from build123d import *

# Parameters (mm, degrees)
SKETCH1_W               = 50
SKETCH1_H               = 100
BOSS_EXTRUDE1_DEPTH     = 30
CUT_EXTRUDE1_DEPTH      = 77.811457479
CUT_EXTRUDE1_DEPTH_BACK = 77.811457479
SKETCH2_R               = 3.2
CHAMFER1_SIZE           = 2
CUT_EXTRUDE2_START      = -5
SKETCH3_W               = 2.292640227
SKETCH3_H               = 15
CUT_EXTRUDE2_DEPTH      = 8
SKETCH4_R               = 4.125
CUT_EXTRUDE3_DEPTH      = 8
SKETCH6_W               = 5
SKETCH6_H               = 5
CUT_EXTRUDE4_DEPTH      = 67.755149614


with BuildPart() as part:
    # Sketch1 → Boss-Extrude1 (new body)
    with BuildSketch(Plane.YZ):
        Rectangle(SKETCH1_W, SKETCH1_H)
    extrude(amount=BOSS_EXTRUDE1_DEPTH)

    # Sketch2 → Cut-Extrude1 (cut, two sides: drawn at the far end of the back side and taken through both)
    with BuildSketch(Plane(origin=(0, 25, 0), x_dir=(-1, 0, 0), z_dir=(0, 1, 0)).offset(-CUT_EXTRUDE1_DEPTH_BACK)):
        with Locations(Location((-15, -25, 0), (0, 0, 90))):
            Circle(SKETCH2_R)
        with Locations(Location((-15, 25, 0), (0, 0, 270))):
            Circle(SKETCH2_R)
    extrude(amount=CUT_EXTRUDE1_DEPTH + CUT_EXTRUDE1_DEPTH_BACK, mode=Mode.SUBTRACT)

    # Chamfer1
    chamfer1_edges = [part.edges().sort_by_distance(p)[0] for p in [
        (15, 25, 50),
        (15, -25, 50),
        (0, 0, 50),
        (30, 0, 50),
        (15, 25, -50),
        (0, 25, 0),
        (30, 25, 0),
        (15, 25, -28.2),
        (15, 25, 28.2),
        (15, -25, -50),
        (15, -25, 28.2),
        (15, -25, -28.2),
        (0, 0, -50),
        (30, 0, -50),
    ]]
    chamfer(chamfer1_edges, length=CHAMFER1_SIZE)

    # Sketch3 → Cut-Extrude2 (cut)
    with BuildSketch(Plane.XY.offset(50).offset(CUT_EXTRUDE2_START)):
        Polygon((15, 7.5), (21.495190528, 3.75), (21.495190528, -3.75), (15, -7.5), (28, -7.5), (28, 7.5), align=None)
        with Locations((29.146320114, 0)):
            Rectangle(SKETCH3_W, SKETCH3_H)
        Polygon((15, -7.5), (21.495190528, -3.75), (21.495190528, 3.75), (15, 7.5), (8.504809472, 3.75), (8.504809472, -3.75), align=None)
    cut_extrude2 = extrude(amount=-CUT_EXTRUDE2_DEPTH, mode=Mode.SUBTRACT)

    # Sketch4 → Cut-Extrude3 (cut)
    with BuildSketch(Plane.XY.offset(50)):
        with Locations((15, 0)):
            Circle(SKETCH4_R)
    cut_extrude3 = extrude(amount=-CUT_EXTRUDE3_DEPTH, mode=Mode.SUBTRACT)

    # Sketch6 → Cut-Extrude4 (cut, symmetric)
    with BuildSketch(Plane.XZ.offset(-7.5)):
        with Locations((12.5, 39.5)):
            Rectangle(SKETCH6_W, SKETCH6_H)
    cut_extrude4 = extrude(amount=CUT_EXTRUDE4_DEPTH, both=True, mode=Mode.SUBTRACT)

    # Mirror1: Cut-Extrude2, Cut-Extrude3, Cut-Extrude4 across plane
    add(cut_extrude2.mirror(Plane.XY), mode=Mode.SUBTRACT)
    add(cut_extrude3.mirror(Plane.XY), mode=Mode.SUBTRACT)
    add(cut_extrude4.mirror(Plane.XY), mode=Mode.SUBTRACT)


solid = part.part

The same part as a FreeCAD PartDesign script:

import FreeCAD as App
import Part
import Sketcher

V = App.Vector
Q = App.Units.Quantity


def edges_at(feature, points):
    """Names of the edges that pass closest to the given points."""
    edges = feature.Shape.Edges
    near = lambda p: min(range(len(edges)), key=lambda i: edges[i].distToShape(Part.Vertex(*p))[0])
    return sorted({f"Edge{near(p) + 1}" for p in points})

doc = App.newDocument("Part")
params = doc.addObject("Spreadsheet::Sheet", "Params")
for row, (alias, value) in enumerate([
    ("sketch1_width", "50 mm"),
    ("sketch1_height", "100 mm"),
    ("pad1_length", "30 mm"),
    ("sketch2_diameter", "6.4 mm"),
    ("chamfer_size", "2 mm"),
    ("sketch3_height", "15 mm"),
    ("sketch3_height2", "7.5 mm"),
    ("pocket2_length", "8 mm"),
    ("sketch4_diameter", "8.25 mm"),
    ("pocket3_length", "8 mm"),
    ("sketch5_width", "5 mm"),
    ("pocket4_length", "135.510299 mm"),
], start=1):
    params.set(f"A{row}", alias)
    params.set(f"B{row}", "=" + value)
    params.setAlias(f"B{row}", alias)

body = doc.addObject("PartDesign::Body", "Body")

# Sketch on YZ plane
sketch1 = doc.addObject("Sketcher::SketchObject", "Sketch")
body.addObject(sketch1)
sketch1.AttachmentSupport = (doc.YZ_Plane, [""])
sketch1.MapMode = "FlatFace"
sketch1.addGeometry(Part.LineSegment(V(-25, 50, 0), V(-25, -50, 0)), False)
sketch1.addGeometry(Part.LineSegment(V(-25, -50, 0), V(25, -50, 0)), False)
sketch1.addGeometry(Part.LineSegment(V(25, -50, 0), V(25, 50, 0)), False)
sketch1.addGeometry(Part.LineSegment(V(25, 50, 0), V(-25, 50, 0)), False)
sketch1.addConstraint(Sketcher.Constraint("Coincident", 0, 2, 1, 1))
sketch1.addConstraint(Sketcher.Constraint("Coincident", 1, 2, 2, 1))
sketch1.addConstraint(Sketcher.Constraint("Coincident", 2, 2, 3, 1))
sketch1.addConstraint(Sketcher.Constraint("Coincident", 3, 2, 0, 1))
sketch1.addConstraint(Sketcher.Constraint("Vertical", 0))
sketch1.addConstraint(Sketcher.Constraint("Horizontal", 1))
sketch1.addConstraint(Sketcher.Constraint("Vertical", 2))
sketch1.addConstraint(Sketcher.Constraint("Horizontal", 3))
sketch1.addConstraint(Sketcher.Constraint("Symmetric", 0, 2, 2, 2, -1, 1))
sketch1.addConstraint(Sketcher.Constraint("DistanceX", 1, 1, 1, 2, Q("50 mm")))
sketch1.addConstraint(Sketcher.Constraint("DistanceY", 0, 2, 0, 1, Q("100 mm")))
sketch1.setExpression("Constraints[9]", "Params.sketch1_width")
sketch1.setExpression("Constraints[10]", "Params.sketch1_height")
pad1 = doc.addObject("PartDesign::Pad", "Pad")
body.addObject(pad1)
pad1.Profile = sketch1
pad1.setExpression("Length", "Params.pad1_length")

# Sketch on XZ plane
sketch2 = doc.addObject("Sketcher::SketchObject", "Sketch001")
body.addObject(sketch2)
sketch2.AttachmentSupport = (doc.XZ_Plane, [""])
sketch2.MapMode = "FlatFace"
sketch2.AttachmentOffset = App.Placement(V(0, 0, -25), App.Rotation())
sketch2.addGeometry(Part.Circle(V(15, -25, 0), V(0, 0, 1), 3.2), False)
sketch2.addGeometry(Part.Circle(V(15, 25, 0), V(0, 0, 1), 3.2), False)
sketch2.addConstraint(Sketcher.Constraint("Equal", 0, 1))
sketch2.addConstraint(Sketcher.Constraint("Symmetric", 0, 3, 1, 3, -1))
sketch2.addConstraint(Sketcher.Constraint("Diameter", 0, Q("6.4 mm")))
sketch2.addConstraint(Sketcher.Constraint("DistanceX", -1, 1, 0, 3, Q("15 mm")))
sketch2.addConstraint(Sketcher.Constraint("DistanceY", 0, 3, -1, 1, Q("25 mm")))
sketch2.setExpression("Constraints[2]", "Params.sketch2_diameter")
pocket1 = doc.addObject("PartDesign::Pocket", "Pocket")
body.addObject(pocket1)
pocket1.Profile = sketch2
pocket1.Type = "ThroughAll"
pocket1.Midplane = True
doc.recompute()

chamfer = doc.addObject("PartDesign::Chamfer", "Chamfer")
body.addObject(chamfer)
chamfer.Base = (pocket1, edges_at(pocket1, [
    (15, 25, 50),
    (15, -25, 50),
    (0, 0, 50),
    (30, 0, 50),
    (15, 25, -50),
    (0, 25, 0),
    (30, 25, 0),
    (15, 25, -28.2),
    (15, 25, 28.2),
    (15, -25, -50),
    (15, -25, 28.2),
    (15, -25, -28.2),
    (0, 0, -50),
    (30, 0, -50),
]))
chamfer.setExpression("Size", "Params.chamfer_size")

# Sketch on XY plane
sketch3 = doc.addObject("Sketcher::SketchObject", "Sketch002")
body.addObject(sketch3)
sketch3.AttachmentSupport = (doc.XY_Plane, [""])
sketch3.MapMode = "FlatFace"
sketch3.AttachmentOffset = App.Placement(V(0, 0, 45), App.Rotation())
sketch3.addGeometry(Part.LineSegment(V(15, -8, 0), V(30, -8, 0)), False)
sketch3.addGeometry(Part.LineSegment(V(30, -8, 0), V(30, 8, 0)), False)
sketch3.addGeometry(Part.LineSegment(V(30, 8, 0), V(15, 8, 0)), False)
sketch3.addGeometry(Part.LineSegment(V(15, 8, 0), V(9, 4, 0)), False)
sketch3.addGeometry(Part.LineSegment(V(9, 4, 0), V(9, -4, 0)), False)
sketch3.addGeometry(Part.LineSegment(V(9, -4, 0), V(15, -8, 0)), False)
sketch3.addConstraint(Sketcher.Constraint("Coincident", 0, 2, 1, 1))
sketch3.addConstraint(Sketcher.Constraint("Coincident", 1, 2, 2, 1))
sketch3.addConstraint(Sketcher.Constraint("Coincident", 2, 2, 3, 1))
sketch3.addConstraint(Sketcher.Constraint("Coincident", 3, 2, 4, 1))
sketch3.addConstraint(Sketcher.Constraint("Coincident", 4, 2, 5, 1))
sketch3.addConstraint(Sketcher.Constraint("Coincident", 5, 2, 0, 1))
sketch3.addConstraint(Sketcher.Constraint("Horizontal", 0))
sketch3.addConstraint(Sketcher.Constraint("Vertical", 1))
sketch3.addConstraint(Sketcher.Constraint("Horizontal", 2))
sketch3.addConstraint(Sketcher.Constraint("Vertical", 4))
sketch3.addConstraint(Sketcher.Constraint("Symmetric", 2, 2, 5, 2, -1))
sketch3.addConstraint(Sketcher.Constraint("Equal", 3, 5))
sketch3.addConstraint(Sketcher.Constraint("DistanceY", 1, 1, 1, 2, Q("15 mm")))
sketch3.addConstraint(Sketcher.Constraint("Angle", 3, Q("-150 deg")))
sketch3.addConstraint(Sketcher.Constraint("DistanceY", 4, 2, 4, 1, Q("7.5 mm")))
sketch3.addConstraint(Sketcher.Constraint("DistanceX", -1, 1, 2, 2, Q("15 mm")))
sketch3.addConstraint(Sketcher.Constraint("DistanceX", 0, 1, 0, 2, Q("15.29264 mm")))
sketch3.setExpression("Constraints[12]", "Params.sketch3_height")
sketch3.setExpression("Constraints[14]", "Params.sketch3_height2")
pocket2 = doc.addObject("PartDesign::Pocket", "Pocket001")
body.addObject(pocket2)
pocket2.Profile = sketch3
pocket2.setExpression("Length", "Params.pocket2_length")

# Sketch on XY plane
sketch4 = doc.addObject("Sketcher::SketchObject", "Sketch003")
body.addObject(sketch4)
sketch4.AttachmentSupport = (doc.XY_Plane, [""])
sketch4.MapMode = "FlatFace"
sketch4.AttachmentOffset = App.Placement(V(0, 0, 50), App.Rotation())
sketch4.addGeometry(Part.Circle(V(15, 0, 0), V(0, 0, 1), 4.1), False)
sketch4.addConstraint(Sketcher.Constraint("PointOnObject", 0, 3, -1))
sketch4.addConstraint(Sketcher.Constraint("Diameter", 0, Q("8.25 mm")))
sketch4.addConstraint(Sketcher.Constraint("DistanceX", -1, 1, 0, 3, Q("15 mm")))
sketch4.setExpression("Constraints[1]", "Params.sketch4_diameter")
pocket3 = doc.addObject("PartDesign::Pocket", "Pocket002")
body.addObject(pocket3)
pocket3.Profile = sketch4
pocket3.setExpression("Length", "Params.pocket3_length")

# Sketch on XZ plane
sketch5 = doc.addObject("Sketcher::SketchObject", "Sketch004")
body.addObject(sketch5)
sketch5.AttachmentSupport = (doc.XZ_Plane, [""])
sketch5.MapMode = "FlatFace"
sketch5.AttachmentOffset = App.Placement(V(0, 0, -7.5), App.Rotation())
sketch5.addGeometry(Part.LineSegment(V(10, 42, 0), V(10, 37, 0)), False)
sketch5.addGeometry(Part.LineSegment(V(10, 37, 0), V(15, 37, 0)), False)
sketch5.addGeometry(Part.LineSegment(V(15, 37, 0), V(15, 42, 0)), False)
sketch5.addGeometry(Part.LineSegment(V(15, 42, 0), V(10, 42, 0)), False)
sketch5.addConstraint(Sketcher.Constraint("Coincident", 0, 2, 1, 1))
sketch5.addConstraint(Sketcher.Constraint("Coincident", 1, 2, 2, 1))
sketch5.addConstraint(Sketcher.Constraint("Coincident", 2, 2, 3, 1))
sketch5.addConstraint(Sketcher.Constraint("Coincident", 3, 2, 0, 1))
sketch5.addConstraint(Sketcher.Constraint("Vertical", 0))
sketch5.addConstraint(Sketcher.Constraint("Horizontal", 1))
sketch5.addConstraint(Sketcher.Constraint("Vertical", 2))
sketch5.addConstraint(Sketcher.Constraint("Horizontal", 3))
sketch5.addConstraint(Sketcher.Constraint("Equal", 3, 0))
sketch5.addConstraint(Sketcher.Constraint("DistanceX", 1, 1, 1, 2, Q("5 mm")))
sketch5.addConstraint(Sketcher.Constraint("DistanceX", -1, 1, 0, 2, Q("10 mm")))
sketch5.addConstraint(Sketcher.Constraint("DistanceY", -1, 1, 0, 2, Q("37 mm")))
sketch5.setExpression("Constraints[9]", "Params.sketch5_width")
pocket4 = doc.addObject("PartDesign::Pocket", "Pocket003")
body.addObject(pocket4)
pocket4.Profile = sketch5
pocket4.setExpression("Length", "Params.pocket4_length")
pocket4.Midplane = True
doc.recompute()

mirrored = doc.addObject("PartDesign::Mirrored", "Mirrored")
body.addObject(mirrored)
mirrored.Originals = [pocket2, pocket3, pocket4]
mirrored.MirrorPlane = (doc.XY_Plane, [""])
body.Tip = mirrored

doc.recompute()
